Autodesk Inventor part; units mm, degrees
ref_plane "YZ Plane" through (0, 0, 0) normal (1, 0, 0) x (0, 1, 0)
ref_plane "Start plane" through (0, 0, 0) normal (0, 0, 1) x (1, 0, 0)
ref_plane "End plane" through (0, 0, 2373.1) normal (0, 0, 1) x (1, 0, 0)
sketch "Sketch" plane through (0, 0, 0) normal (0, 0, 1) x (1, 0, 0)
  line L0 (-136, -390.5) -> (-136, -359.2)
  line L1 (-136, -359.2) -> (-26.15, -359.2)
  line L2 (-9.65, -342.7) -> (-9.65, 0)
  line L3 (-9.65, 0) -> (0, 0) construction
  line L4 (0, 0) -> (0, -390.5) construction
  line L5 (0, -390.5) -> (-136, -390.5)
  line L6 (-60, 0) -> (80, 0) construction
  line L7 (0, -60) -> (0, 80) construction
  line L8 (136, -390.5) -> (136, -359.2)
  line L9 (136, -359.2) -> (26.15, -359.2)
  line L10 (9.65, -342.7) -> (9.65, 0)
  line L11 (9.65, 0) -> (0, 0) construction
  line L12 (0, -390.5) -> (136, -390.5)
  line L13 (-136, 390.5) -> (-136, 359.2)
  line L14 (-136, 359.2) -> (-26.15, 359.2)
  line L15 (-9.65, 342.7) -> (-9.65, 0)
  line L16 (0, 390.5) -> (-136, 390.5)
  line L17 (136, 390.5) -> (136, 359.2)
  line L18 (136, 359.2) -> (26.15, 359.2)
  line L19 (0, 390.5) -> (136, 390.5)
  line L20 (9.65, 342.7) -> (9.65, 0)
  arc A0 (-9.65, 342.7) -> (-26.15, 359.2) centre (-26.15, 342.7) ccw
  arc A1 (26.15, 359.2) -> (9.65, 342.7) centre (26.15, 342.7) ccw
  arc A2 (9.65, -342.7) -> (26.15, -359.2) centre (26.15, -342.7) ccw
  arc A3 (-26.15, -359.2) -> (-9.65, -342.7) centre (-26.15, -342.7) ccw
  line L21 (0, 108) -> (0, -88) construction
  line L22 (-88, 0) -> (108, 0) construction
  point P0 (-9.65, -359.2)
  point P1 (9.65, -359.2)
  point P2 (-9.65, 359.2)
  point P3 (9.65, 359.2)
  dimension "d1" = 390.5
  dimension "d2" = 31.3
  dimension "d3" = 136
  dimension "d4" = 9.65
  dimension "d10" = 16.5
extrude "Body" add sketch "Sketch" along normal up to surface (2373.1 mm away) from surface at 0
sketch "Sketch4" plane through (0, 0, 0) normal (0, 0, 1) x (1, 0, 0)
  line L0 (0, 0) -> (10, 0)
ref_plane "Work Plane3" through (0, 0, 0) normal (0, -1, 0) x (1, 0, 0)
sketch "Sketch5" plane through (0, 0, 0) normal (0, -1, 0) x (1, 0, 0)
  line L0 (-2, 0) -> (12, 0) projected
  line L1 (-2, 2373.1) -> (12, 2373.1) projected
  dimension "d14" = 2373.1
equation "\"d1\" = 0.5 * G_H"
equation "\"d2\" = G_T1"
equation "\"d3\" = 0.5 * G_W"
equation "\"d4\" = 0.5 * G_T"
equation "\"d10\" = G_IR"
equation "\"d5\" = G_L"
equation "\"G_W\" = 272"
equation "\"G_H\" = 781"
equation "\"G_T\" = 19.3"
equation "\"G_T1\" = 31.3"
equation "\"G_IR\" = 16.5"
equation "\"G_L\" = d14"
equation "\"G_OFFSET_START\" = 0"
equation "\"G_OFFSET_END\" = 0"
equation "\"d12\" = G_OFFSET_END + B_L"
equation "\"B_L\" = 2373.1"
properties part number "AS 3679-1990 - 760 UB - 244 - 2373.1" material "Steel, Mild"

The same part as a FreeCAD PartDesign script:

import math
import FreeCAD as App
import Part
import Sketcher
from FreeCAD import Vector
Q = App.Units.Quantity

doc = App.newDocument("Part")
body = doc.addObject("PartDesign::Body", "Body")

# Sketch on XY plane
sketch1 = body.newObject("Sketcher::SketchObject", "Sketch")
sketch1.AttachmentSupport = (doc.getObject("XY_Plane"), [""])
sketch1.MapMode = "FlatFace"
sketch1.addGeometry(Part.LineSegment(Vector(-136, -359, 0), Vector(-136, -390, 0)), False)
sketch1.addGeometry(Part.LineSegment(Vector(-136, -390, 0), Vector(136, -390, 0)), False)
sketch1.addGeometry(Part.LineSegment(Vector(136, -390, 0), Vector(136, -359, 0)), False)
sketch1.addGeometry(Part.LineSegment(Vector(136, -359, 0), Vector(26, -359, 0)), False)
sketch1.addGeometry(Part.ArcOfCircle(Part.Circle(Vector(26, -343, 0), Vector(0, 0, 1), 16), math.radians(180), math.radians(270)), False)
sketch1.addGeometry(Part.LineSegment(Vector(10, -343, 0), Vector(10, 343, 0)), False)
sketch1.addGeometry(Part.ArcOfCircle(Part.Circle(Vector(26, 343, 0), Vector(0, 0, 1), 16), math.radians(90), math.radians(180)), False)
sketch1.addGeometry(Part.LineSegment(Vector(26, 359, 0), Vector(136, 359, 0)), False)
sketch1.addGeometry(Part.LineSegment(Vector(136, 359, 0), Vector(136, 390, 0)), False)
sketch1.addGeometry(Part.LineSegment(Vector(136, 390, 0), Vector(-136, 390, 0)), False)
sketch1.addGeometry(Part.LineSegment(Vector(-136, 390, 0), Vector(-136, 359, 0)), False)
sketch1.addGeometry(Part.LineSegment(Vector(-136, 359, 0), Vector(-26, 359, 0)), False)
sketch1.addGeometry(Part.ArcOfCircle(Part.Circle(Vector(-26, 343, 0), Vector(0, 0, 1), 16), math.radians(0), math.radians(90)), False)
sketch1.addGeometry(Part.LineSegment(Vector(-10, 343, 0), Vector(-10, -343, 0)), False)
sketch1.addGeometry(Part.ArcOfCircle(Part.Circle(Vector(-26, -343, 0), Vector(0, 0, 1), 16), math.radians(-90), math.radians(0)), False)
sketch1.addGeometry(Part.LineSegment(Vector(-26, -359, 0), Vector(-136, -359, 0)), False)
sketch1.addConstraint(Sketcher.Constraint("Coincident", 0, 2, 1, 1))
sketch1.addConstraint(Sketcher.Constraint("Coincident", 1, 2, 2, 1))
sketch1.addConstraint(Sketcher.Constraint("Coincident", 2, 2, 3, 1))
sketch1.addConstraint(Sketcher.Constraint("Tangent", 3, 2, 4, 2))
sketch1.addConstraint(Sketcher.Constraint("Tangent", 4, 1, 5, 1))
sketch1.addConstraint(Sketcher.Constraint("Tangent", 5, 2, 6, 2))
sketch1.addConstraint(Sketcher.Constraint("Tangent", 6, 1, 7, 1))
sketch1.addConstraint(Sketcher.Constraint("Coincident", 7, 2, 8, 1))
sketch1.addConstraint(Sketcher.Constraint("Coincident", 8, 2, 9, 1))
sketch1.addConstraint(Sketcher.Constraint("Coincident", 9, 2, 10, 1))
sketch1.addConstraint(Sketcher.Constraint("Coincident", 10, 2, 11, 1))
sketch1.addConstraint(Sketcher.Constraint("Tangent", 11, 2, 12, 2))
sketch1.addConstraint(Sketcher.Constraint("Tangent", 12, 1, 13, 1))
sketch1.addConstraint(Sketcher.Constraint("Tangent", 13, 2, 14, 2))
sketch1.addConstraint(Sketcher.Constraint("Tangent", 14, 1, 15, 1))
sketch1.addConstraint(Sketcher.Constraint("Coincident", 15, 2, 0, 1))
sketch1.addConstraint(Sketcher.Constraint("Vertical", 0))
sketch1.addConstraint(Sketcher.Constraint("Horizontal", 1))
sketch1.addConstraint(Sketcher.Constraint("Vertical", 2))
sketch1.addConstraint(Sketcher.Constraint("Horizontal", 3))
sketch1.addConstraint(Sketcher.Constraint("Vertical", 5))
sketch1.addConstraint(Sketcher.Constraint("Horizontal", 7))
sketch1.addConstraint(Sketcher.Constraint("Vertical", 8))
sketch1.addConstraint(Sketcher.Constraint("Horizontal", 9))
sketch1.addConstraint(Sketcher.Constraint("Vertical", 10))
sketch1.addConstraint(Sketcher.Constraint("Horizontal", 11))
sketch1.addConstraint(Sketcher.Constraint("Vertical", 13))
sketch1.addConstraint(Sketcher.Constraint("Horizontal", 15))
sketch1.addConstraint(Sketcher.Constraint("Equal", 4, 6))
sketch1.addConstraint(Sketcher.Constraint("Equal", 6, 12))
sketch1.addConstraint(Sketcher.Constraint("Equal", 12, 14))
sketch1.addConstraint(Sketcher.Constraint("Symmetric", 4, 3, 12, 3, -1, 1))
sketch1.addConstraint(Sketcher.Constraint("Symmetric", 0, 2, 8, 2, -1, 1))
sketch1.addConstraint(Sketcher.Constraint("Symmetric", 7, 2, 10, 2, -2))
sketch1.addConstraint(Sketcher.Constraint("Symmetric", 2, 2, 15, 2, -2))
sketch1.addConstraint(Sketcher.Constraint("Radius", 4, Q("16.5 mm")))
sketch1.addConstraint(Sketcher.Constraint("DistanceY", 0, 2, 0, 1, Q("31.3 mm")))
sketch1.addConstraint(Sketcher.Constraint("DistanceX", 0, 2, -1, 1, Q("136 mm")))
sketch1.addConstraint(Sketcher.Constraint("DistanceY", 0, 2, -1, 1, Q("390.5 mm")))
sketch1.addConstraint(Sketcher.Constraint("DistanceX", -1, 1, 4, 1, Q("9.65 mm")))
pad1 = body.newObject("PartDesign::Pad", "Pad")
pad1.Profile = sketch1
pad1.Length = 2373.1

doc.recompute()
